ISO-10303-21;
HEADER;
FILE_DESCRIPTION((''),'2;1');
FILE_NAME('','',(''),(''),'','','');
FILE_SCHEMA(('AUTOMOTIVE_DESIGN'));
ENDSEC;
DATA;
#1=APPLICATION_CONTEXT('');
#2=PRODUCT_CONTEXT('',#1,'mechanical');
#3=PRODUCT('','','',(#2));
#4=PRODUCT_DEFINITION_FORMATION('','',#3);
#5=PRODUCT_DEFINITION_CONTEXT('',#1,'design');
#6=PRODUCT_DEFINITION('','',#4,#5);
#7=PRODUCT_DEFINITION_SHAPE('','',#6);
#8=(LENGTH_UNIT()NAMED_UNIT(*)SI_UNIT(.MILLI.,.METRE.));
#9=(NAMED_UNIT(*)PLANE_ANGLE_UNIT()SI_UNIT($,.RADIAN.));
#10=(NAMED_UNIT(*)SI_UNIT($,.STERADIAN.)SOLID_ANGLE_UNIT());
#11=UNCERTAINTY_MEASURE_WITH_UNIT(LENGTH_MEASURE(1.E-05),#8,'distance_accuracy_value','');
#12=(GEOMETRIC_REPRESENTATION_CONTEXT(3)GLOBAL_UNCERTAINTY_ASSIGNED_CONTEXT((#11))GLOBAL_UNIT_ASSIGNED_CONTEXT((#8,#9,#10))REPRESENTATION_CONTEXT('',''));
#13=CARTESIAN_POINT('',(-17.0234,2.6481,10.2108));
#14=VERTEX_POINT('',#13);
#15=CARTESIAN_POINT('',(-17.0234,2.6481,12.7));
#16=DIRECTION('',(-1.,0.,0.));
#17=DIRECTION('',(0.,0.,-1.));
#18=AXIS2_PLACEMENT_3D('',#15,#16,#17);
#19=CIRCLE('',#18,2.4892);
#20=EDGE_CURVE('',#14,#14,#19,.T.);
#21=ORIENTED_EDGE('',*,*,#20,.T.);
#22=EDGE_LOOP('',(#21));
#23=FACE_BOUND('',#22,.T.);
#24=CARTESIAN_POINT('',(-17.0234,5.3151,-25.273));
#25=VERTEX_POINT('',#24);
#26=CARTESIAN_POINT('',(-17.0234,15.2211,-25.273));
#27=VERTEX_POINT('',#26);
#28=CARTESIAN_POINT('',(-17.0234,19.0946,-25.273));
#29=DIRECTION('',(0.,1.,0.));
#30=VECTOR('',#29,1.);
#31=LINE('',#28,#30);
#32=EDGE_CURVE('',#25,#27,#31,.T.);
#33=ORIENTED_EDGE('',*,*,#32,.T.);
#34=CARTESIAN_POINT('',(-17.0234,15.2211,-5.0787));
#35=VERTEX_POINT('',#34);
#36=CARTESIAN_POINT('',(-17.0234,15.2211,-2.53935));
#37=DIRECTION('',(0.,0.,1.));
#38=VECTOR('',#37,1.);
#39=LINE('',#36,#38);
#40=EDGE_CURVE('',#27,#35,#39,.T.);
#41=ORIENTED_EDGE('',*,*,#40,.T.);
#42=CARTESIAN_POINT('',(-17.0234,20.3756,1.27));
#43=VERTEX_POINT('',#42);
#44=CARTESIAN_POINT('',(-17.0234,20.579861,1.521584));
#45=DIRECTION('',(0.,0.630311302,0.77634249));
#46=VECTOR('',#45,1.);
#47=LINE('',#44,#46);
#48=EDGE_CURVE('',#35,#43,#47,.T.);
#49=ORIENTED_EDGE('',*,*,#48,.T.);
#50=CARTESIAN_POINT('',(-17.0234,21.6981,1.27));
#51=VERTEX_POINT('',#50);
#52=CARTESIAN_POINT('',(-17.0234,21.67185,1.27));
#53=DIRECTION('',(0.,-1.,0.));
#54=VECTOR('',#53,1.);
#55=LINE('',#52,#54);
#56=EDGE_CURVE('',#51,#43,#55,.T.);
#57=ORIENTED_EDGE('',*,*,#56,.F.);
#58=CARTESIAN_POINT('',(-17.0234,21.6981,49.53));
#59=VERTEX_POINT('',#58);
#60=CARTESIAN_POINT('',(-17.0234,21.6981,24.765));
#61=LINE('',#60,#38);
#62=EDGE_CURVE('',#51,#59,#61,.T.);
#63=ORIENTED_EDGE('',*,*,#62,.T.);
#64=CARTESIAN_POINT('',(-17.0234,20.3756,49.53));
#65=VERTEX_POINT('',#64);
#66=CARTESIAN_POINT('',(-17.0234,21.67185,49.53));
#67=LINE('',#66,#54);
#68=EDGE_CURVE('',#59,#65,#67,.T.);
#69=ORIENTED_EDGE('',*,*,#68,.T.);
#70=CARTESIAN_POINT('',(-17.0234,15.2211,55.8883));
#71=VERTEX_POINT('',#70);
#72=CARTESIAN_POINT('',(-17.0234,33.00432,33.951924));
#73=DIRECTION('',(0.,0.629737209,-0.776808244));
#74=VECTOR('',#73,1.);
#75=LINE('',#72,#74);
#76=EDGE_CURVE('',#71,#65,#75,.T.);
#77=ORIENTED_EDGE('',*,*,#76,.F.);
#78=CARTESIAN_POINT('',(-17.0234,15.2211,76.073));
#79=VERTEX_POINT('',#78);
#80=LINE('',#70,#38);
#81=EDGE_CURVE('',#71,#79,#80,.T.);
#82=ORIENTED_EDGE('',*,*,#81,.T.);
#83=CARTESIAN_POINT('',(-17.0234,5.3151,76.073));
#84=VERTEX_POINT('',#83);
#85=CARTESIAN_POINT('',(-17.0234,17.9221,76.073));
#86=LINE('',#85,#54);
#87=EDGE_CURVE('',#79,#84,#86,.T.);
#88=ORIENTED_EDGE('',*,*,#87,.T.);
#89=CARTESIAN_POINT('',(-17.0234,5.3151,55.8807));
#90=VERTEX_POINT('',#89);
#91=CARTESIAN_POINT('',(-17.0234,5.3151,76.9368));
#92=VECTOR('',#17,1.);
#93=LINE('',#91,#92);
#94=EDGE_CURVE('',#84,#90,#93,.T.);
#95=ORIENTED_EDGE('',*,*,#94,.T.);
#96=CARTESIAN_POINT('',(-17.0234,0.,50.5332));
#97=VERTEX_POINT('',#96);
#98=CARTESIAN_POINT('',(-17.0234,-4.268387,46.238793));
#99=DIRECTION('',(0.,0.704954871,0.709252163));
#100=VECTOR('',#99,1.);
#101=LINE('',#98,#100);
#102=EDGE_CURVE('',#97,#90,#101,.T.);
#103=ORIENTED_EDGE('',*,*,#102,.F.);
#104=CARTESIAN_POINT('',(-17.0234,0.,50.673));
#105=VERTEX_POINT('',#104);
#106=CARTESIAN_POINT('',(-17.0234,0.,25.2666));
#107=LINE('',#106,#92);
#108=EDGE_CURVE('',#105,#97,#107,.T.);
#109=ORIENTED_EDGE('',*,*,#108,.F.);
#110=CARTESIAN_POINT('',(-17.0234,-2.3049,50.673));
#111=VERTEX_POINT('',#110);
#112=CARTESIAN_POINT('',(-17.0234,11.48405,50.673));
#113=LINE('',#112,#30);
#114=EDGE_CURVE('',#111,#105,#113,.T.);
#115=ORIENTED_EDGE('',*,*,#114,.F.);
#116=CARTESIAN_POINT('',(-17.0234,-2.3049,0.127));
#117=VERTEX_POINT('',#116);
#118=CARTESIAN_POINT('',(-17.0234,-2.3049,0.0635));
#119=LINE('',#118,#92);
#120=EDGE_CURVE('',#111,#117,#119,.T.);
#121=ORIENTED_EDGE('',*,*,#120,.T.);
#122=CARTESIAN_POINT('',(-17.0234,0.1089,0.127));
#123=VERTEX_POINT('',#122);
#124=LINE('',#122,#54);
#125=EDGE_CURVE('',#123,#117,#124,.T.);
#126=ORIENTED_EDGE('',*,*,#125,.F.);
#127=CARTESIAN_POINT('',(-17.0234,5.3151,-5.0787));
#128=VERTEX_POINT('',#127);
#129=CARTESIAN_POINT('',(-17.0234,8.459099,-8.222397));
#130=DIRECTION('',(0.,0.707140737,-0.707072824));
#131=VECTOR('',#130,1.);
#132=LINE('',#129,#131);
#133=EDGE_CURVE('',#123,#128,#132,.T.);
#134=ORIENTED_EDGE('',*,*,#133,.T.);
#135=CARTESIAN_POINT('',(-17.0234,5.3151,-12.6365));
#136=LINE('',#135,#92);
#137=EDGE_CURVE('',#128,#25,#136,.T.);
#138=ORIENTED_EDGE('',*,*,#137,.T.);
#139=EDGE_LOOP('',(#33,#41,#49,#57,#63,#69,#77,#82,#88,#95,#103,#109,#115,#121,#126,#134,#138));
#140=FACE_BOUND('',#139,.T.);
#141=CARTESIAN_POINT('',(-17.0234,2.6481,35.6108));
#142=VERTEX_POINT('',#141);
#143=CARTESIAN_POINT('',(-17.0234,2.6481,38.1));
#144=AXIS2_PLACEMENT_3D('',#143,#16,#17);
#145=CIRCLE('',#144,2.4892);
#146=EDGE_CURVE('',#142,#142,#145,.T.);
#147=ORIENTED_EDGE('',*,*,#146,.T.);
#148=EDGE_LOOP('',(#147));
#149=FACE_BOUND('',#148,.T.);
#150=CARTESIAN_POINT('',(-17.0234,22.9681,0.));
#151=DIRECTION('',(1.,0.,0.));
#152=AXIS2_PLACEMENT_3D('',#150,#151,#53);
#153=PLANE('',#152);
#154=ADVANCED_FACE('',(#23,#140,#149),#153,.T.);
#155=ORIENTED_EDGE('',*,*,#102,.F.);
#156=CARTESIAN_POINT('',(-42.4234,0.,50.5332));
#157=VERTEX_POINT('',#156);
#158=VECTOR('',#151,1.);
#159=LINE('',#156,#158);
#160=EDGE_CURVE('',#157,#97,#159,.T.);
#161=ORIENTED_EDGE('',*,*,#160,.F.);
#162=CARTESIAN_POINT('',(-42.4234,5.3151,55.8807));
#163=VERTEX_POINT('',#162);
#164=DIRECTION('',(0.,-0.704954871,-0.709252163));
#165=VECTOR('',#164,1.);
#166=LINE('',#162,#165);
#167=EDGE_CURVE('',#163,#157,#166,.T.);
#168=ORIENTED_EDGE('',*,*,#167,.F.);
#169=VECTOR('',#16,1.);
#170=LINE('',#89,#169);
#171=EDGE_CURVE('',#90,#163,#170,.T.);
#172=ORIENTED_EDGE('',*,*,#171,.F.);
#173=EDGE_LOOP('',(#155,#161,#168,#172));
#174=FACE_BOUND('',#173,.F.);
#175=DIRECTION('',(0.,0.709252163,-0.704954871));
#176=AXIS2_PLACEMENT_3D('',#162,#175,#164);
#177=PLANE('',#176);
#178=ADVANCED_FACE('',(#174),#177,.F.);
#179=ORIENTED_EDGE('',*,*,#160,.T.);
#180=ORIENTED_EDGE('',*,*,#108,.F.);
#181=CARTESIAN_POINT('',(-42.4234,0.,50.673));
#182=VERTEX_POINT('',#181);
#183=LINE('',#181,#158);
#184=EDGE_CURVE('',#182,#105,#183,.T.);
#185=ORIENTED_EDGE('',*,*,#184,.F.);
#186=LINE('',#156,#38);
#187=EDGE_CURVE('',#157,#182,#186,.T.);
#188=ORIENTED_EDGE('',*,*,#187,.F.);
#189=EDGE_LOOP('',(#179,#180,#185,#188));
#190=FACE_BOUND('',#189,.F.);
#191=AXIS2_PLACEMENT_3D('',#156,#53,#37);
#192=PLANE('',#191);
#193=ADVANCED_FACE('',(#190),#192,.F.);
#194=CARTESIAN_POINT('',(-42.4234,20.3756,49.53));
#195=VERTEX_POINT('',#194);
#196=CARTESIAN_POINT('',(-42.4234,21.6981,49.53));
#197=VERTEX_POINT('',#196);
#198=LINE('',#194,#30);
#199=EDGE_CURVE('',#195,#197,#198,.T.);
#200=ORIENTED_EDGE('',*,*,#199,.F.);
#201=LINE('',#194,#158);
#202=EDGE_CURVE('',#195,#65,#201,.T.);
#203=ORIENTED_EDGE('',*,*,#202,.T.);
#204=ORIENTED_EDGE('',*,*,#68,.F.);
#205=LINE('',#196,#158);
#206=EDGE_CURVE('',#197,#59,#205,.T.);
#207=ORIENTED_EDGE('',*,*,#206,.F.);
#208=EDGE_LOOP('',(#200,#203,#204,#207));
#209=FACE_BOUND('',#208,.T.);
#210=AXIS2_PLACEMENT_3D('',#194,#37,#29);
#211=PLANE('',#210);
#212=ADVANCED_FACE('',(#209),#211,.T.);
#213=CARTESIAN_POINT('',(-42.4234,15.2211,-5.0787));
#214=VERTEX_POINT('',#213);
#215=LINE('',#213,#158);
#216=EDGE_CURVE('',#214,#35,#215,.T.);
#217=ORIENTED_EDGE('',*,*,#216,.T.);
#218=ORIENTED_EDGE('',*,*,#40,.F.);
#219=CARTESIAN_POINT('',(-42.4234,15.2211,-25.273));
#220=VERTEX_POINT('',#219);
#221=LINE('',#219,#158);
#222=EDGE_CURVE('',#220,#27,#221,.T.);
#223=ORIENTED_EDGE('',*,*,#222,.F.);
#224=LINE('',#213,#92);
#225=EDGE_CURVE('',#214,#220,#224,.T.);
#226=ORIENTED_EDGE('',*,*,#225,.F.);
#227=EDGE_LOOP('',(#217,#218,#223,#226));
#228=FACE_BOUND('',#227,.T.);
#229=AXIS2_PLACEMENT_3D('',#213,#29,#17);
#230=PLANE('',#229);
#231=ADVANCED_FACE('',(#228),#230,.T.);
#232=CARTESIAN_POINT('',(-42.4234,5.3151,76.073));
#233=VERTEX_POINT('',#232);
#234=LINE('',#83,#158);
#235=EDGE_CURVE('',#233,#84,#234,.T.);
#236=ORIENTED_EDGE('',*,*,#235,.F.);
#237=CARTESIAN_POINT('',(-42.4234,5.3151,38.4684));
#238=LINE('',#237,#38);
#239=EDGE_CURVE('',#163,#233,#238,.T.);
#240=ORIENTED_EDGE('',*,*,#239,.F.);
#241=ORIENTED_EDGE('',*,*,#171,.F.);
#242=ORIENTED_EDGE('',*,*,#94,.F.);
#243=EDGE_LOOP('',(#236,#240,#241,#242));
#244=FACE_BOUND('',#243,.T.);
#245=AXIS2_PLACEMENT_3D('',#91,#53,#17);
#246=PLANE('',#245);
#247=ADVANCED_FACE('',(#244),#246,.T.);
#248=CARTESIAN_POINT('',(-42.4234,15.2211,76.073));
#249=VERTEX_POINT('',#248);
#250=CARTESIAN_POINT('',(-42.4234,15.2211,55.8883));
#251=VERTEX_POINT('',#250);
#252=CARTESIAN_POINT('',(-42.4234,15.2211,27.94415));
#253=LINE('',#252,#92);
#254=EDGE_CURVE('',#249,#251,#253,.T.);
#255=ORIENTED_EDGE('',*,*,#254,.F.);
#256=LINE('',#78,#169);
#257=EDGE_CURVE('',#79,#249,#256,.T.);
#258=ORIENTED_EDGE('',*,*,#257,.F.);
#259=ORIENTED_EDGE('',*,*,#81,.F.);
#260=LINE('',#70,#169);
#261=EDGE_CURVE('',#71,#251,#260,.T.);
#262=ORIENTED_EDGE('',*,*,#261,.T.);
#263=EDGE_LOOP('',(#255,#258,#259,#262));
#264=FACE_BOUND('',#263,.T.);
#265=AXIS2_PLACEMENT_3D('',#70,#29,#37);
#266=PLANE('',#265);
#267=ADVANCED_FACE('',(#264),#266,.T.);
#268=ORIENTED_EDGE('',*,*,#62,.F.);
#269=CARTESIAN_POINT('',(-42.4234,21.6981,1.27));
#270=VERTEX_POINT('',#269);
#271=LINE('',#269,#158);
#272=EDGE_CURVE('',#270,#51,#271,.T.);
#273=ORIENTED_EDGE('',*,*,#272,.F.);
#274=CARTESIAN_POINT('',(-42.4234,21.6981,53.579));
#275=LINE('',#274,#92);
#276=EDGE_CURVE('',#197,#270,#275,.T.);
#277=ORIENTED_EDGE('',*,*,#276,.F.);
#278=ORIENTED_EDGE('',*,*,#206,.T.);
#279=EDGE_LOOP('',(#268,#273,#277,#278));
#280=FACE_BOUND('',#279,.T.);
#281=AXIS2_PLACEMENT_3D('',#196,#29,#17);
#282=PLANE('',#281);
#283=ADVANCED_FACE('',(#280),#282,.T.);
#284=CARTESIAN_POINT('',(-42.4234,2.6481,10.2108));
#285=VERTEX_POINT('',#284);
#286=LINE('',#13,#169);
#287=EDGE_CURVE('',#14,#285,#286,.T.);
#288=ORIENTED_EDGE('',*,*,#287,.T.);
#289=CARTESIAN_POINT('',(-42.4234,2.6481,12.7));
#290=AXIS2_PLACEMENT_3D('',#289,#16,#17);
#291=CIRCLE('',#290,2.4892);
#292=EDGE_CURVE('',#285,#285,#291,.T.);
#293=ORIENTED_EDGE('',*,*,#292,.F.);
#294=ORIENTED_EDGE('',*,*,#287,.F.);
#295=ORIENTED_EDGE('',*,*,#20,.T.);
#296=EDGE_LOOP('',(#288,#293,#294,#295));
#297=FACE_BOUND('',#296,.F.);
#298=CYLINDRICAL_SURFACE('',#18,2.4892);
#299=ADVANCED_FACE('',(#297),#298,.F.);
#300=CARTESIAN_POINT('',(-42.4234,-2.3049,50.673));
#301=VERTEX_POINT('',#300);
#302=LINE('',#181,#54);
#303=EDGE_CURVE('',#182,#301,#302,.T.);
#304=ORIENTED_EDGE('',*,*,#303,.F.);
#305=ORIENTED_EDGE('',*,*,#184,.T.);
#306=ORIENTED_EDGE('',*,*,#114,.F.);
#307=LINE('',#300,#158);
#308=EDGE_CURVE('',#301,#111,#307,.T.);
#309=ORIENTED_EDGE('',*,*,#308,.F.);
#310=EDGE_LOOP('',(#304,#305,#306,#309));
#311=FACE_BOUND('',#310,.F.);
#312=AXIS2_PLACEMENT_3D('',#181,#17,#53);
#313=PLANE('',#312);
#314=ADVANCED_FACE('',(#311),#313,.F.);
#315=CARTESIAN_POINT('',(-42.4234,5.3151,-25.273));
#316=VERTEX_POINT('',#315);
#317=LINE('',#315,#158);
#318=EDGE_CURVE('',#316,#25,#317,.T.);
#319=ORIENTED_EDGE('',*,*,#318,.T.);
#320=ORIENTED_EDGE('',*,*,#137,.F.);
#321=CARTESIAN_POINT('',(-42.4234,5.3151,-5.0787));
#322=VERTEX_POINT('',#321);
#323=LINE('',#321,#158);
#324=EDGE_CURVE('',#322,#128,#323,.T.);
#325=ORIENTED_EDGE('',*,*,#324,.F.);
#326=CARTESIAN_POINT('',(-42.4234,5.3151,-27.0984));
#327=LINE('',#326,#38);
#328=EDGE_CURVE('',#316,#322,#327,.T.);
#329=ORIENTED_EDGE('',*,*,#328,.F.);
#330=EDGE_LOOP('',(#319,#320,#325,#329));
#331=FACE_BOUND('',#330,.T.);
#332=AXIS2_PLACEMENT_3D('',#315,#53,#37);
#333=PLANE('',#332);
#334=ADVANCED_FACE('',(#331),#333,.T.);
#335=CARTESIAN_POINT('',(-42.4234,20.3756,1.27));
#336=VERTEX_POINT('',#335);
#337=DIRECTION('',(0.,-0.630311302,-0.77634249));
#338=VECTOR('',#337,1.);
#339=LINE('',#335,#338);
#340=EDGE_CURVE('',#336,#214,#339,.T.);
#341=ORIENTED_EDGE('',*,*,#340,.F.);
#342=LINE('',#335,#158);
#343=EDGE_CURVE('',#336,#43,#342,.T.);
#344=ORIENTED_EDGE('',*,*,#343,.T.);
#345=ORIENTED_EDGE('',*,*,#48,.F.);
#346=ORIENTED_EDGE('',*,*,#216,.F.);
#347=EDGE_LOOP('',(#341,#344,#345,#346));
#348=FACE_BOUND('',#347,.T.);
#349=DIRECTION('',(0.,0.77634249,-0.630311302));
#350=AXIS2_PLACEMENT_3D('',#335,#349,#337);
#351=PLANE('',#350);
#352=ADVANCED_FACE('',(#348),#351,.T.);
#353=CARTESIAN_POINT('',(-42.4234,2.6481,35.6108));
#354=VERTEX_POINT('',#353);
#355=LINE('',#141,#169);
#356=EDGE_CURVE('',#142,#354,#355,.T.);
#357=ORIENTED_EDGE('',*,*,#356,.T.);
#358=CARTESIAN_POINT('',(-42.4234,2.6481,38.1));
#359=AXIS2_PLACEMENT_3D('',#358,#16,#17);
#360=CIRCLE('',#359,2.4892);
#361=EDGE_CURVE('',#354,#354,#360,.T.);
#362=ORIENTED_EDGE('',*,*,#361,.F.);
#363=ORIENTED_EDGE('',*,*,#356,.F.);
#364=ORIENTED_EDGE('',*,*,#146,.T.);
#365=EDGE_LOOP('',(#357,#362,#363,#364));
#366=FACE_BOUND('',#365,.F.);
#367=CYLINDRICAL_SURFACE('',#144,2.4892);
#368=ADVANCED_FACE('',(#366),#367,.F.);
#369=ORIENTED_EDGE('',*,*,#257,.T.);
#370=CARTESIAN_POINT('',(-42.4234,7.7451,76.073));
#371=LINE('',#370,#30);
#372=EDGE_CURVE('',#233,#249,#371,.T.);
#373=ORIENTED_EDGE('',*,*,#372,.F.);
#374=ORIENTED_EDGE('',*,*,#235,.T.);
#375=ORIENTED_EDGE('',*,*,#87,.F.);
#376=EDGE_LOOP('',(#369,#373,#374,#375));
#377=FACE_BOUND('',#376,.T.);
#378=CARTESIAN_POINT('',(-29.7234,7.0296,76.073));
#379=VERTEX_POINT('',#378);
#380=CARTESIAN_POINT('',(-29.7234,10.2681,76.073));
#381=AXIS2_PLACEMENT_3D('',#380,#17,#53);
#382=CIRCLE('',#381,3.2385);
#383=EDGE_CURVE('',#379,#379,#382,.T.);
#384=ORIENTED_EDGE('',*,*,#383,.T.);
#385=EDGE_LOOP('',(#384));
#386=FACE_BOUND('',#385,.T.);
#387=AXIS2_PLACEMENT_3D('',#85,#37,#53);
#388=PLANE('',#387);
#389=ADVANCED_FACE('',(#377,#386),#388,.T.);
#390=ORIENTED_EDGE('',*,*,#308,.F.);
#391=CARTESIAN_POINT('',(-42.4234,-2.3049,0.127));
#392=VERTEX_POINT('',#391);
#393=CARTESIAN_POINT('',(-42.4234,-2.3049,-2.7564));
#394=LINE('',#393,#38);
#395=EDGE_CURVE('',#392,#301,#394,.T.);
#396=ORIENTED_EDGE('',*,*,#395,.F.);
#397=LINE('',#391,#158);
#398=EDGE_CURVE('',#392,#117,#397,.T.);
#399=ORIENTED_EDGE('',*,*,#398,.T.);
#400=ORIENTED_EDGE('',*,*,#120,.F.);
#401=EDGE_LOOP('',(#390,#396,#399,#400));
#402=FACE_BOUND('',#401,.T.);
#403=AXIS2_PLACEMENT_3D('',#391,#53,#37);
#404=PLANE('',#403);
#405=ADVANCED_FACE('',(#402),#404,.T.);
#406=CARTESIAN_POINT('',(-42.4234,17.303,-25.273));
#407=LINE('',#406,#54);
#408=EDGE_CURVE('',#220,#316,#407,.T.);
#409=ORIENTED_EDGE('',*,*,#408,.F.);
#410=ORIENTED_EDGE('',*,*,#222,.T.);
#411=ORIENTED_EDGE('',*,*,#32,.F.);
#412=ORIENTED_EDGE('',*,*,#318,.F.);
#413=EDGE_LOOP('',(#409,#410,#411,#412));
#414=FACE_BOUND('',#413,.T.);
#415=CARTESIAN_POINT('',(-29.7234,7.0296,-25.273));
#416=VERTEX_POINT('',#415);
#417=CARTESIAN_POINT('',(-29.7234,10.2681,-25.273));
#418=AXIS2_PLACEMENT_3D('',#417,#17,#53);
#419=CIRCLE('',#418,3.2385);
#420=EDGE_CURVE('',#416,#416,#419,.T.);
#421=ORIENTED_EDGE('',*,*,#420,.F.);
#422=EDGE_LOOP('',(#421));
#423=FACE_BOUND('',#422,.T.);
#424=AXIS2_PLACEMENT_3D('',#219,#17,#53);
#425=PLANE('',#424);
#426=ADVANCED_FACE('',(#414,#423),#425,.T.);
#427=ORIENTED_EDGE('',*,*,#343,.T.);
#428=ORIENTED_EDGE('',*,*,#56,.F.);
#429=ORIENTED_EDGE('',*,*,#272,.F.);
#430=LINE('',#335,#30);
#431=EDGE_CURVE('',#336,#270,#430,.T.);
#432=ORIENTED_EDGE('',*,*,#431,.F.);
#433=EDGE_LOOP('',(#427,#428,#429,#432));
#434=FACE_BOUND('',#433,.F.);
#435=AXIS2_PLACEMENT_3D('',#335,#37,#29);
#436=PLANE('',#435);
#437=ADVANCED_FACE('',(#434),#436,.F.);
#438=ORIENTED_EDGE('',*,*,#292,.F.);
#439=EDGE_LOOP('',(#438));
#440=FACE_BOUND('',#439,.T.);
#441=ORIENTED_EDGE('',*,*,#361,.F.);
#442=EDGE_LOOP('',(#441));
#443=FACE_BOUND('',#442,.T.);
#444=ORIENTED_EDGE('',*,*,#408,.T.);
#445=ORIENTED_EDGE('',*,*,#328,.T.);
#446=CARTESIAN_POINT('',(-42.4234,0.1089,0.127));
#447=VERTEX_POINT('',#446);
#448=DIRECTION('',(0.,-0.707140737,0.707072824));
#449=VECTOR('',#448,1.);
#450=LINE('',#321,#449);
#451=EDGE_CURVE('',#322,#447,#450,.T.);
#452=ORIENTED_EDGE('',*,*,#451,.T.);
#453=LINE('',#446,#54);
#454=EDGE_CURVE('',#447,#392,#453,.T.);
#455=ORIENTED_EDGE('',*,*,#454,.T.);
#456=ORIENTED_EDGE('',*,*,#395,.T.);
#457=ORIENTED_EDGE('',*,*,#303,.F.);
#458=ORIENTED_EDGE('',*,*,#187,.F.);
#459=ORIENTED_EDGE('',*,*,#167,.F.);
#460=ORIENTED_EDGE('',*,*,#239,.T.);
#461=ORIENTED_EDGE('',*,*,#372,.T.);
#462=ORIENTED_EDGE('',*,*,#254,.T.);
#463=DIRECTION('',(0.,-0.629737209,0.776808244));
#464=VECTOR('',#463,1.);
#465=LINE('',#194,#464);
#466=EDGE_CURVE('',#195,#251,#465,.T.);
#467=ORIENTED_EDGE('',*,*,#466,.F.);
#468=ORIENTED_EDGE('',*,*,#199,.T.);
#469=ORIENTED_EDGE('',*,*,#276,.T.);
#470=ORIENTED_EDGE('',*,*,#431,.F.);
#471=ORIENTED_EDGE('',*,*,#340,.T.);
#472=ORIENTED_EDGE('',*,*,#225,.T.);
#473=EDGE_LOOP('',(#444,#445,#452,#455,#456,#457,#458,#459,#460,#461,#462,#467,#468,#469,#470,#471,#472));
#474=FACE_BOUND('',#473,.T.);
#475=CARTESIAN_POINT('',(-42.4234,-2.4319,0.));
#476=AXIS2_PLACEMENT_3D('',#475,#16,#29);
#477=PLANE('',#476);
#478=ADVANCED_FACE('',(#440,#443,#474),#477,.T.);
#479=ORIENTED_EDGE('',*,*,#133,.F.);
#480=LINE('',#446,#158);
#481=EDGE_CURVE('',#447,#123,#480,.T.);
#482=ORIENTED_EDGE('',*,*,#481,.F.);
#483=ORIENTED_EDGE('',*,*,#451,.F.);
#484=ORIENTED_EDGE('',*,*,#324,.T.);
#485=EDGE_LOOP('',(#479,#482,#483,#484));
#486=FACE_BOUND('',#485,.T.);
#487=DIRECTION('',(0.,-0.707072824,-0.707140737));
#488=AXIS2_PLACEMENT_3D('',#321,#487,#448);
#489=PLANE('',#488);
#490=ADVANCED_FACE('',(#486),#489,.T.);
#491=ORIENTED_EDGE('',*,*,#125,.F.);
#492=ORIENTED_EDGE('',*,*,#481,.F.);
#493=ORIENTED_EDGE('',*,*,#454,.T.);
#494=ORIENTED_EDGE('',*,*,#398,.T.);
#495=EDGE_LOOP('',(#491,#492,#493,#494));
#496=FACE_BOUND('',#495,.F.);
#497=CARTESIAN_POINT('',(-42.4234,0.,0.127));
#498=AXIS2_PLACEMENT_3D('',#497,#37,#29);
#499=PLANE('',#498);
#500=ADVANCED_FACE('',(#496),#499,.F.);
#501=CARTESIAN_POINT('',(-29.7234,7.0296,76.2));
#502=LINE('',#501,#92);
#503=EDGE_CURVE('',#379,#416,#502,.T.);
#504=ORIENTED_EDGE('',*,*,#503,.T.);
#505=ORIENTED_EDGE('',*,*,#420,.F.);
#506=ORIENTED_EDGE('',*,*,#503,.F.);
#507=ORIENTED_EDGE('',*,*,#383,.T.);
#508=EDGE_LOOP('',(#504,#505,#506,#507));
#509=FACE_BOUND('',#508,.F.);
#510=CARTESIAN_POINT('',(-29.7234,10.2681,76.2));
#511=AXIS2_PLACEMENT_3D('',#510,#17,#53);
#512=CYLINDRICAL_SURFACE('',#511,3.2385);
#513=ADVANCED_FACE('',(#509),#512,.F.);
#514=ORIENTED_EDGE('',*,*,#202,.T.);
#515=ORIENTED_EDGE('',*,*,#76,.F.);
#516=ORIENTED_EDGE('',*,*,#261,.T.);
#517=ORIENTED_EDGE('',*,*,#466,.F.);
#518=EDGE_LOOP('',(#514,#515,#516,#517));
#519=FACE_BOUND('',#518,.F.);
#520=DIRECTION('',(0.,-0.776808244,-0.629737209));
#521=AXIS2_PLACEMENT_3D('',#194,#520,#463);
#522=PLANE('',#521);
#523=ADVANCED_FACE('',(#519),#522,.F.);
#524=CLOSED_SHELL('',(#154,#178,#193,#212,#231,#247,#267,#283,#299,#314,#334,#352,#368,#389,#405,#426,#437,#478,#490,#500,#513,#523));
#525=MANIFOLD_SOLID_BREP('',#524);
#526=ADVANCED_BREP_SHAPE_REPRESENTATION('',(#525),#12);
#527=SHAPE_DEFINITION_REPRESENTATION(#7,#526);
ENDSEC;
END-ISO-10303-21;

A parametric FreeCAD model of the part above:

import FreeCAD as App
import Part
import Sketcher

V = App.Vector
Q = App.Units.Quantity

doc = App.newDocument("Part")
params = doc.addObject("Spreadsheet::Sheet", "Params")
for row, (alias, value) in enumerate([
    ("sketch1_width", "1 in"),
    ("pad1_length", "2 in"),
    ("sketch2_width", "0.8 in"),
    ("pad2_length", "1 in"),
    ("sketch3_width", "0.8 in"),
    ("sketch3_width2", "0.4 in"),
    ("pad3_length", "1 in"),
    ("sketch4_diameter", "0.255 in"),
    ("hole_diameter", "0.255 in"),
    ("sketch5_diameter", "0.196 in"),
    ("hole2_diameter", "0.196 in"),
    ("pocket1_length", "2 in"),
    ("pocket2_length", "2 in"),
    ("sketch8_width", "0.39 in"),
    ("pocket3_length", "2 in"),
    ("sketch9_height", "1.99 in"),
    ("pocket4_length", "2 in"),
    ("sketch10_height", "1.9 in"),
    ("pocket5_length", "2 in"),
    ("sketch11_height", "0.005 in"),
    ("pocket6_length", "2 in"),
    ("pocket7_length", "2 in"),
    ("sketch13_width", "0.005 in"),
    ("pocket8_length", "2 in"),
    ("sketch14_width", "0.005 in"),
    ("pocket9_length", "2 in"),
], start=1):
    params.set(f"A{row}", alias)
    params.set(f"B{row}", "=" + value)
    params.setAlias(f"B{row}", alias)

body = doc.addObject("PartDesign::Body", "Body")

# Sketch on XY plane
sketch1 = doc.addObject("Sketcher::SketchObject", "Sketch")
body.addObject(sketch1)
sketch1.AttachmentSupport = (doc.XY_Plane, [""])
sketch1.MapMode = "FlatFace"
sketch1.addGeometry([
    Part.LineSegment(V(-17, 23, 0), V(-42, 23, 0)),
    Part.LineSegment(V(-42, 23, 0), V(-42, -2, 0)),
    Part.LineSegment(V(-42, -2, 0), V(-17, -2, 0)),
    Part.LineSegment(V(-17, -2, 0), V(-17, 23, 0)),
], False)
sketch1.addConstraint([
    Sketcher.Constraint("Coincident", 0, 2, 1, 1),
    Sketcher.Constraint("Coincident", 1, 2, 2, 1),
    Sketcher.Constraint("Coincident", 2, 2, 3, 1),
    Sketcher.Constraint("Coincident", 3, 2, 0, 1),
    Sketcher.Constraint("Horizontal", 0),
    Sketcher.Constraint("Vertical", 1),
    Sketcher.Constraint("Horizontal", 2),
    Sketcher.Constraint("Vertical", 3),
    Sketcher.Constraint("Equal", 2, 1),
    Sketcher.Constraint("DistanceX", 0, 2, 0, 1, Q("1 in")),
    Sketcher.Constraint("DistanceX", 0, 2, -1, 1, Q("42.4234 mm")),
    Sketcher.Constraint("DistanceY", -1, 1, 0, 2, Q("22.968 mm")),
])
sketch1.setExpression("Constraints[9]", "Params.sketch1_width")
pad1 = doc.addObject("PartDesign::Pad", "Pad")
body.addObject(pad1)
pad1.Profile = sketch1
pad1.setExpression("Length", "Params.pad1_length")

# Sketch on YZ plane
sketch2 = doc.addObject("Sketcher::SketchObject", "Sketch001")
body.addObject(sketch2)
sketch2.AttachmentSupport = (doc.YZ_Plane, [""])
sketch2.MapMode = "FlatFace"
sketch2.AttachmentOffset = App.Placement(V(0, 0, -17.0234), App.Rotation())
sketch2.addGeometry([
    Part.LineSegment(V(0, 51, 0), V(20, 51, 0)),  # 0
    Part.LineSegment(V(20, 51, 0), V(15, 56, 0)),  # 1
    Part.LineSegment(V(15, 56, 0), V(15, 76, 0)),  # 2
    Part.LineSegment(V(15, 76, 0), V(5, 76, 0)),  # 3
    Part.LineSegment(V(5, 76, 0), V(5, 56, 0)),  # 4
    Part.LineSegment(V(5, 56, 0), V(0, 51, 0)),  # 5
], False)
sketch2.addConstraint([
    Sketcher.Constraint("Coincident", 0, 2, 1, 1),
    Sketcher.Constraint("Coincident", 1, 2, 2, 1),
    Sketcher.Constraint("Coincident", 2, 2, 3, 1),
    Sketcher.Constraint("Coincident", 3, 2, 4, 1),
    Sketcher.Constraint("Coincident", 4, 2, 5, 1),
    Sketcher.Constraint("Coincident", 5, 2, 0, 1),
    Sketcher.Constraint("Horizontal", 0),
    Sketcher.Constraint("Vertical", 2),
    Sketcher.Constraint("Horizontal", 3),
    Sketcher.Constraint("Vertical", 4),
    Sketcher.Constraint("Perpendicular", 1, 5),
    Sketcher.Constraint("Horizontal", 1, 2, 4, 2),
    Sketcher.Constraint("Equal", 0, 2),
    Sketcher.Constraint("Equal", 1, 5),
    Sketcher.Constraint("DistanceX", 0, 1, 0, 2, Q("0.8 in")),
    Sketcher.Constraint("DistanceY", 0, 2, 2, 2, Q("1 in")),
    Sketcher.Constraint("DistanceY", -1, 1, 0, 2, Q("2 in")),
    Sketcher.Constraint("DistanceX", -1, 1, 0, 2, Q("20.428 mm")),
])
sketch2.setExpression("Constraints[14]", "Params.sketch2_width")
pad2 = doc.addObject("PartDesign::Pad", "Pad001")
body.addObject(pad2)
pad2.Profile = sketch2
pad2.setExpression("Length", "Params.pad2_length")
pad2.Reversed = True

# Sketch on YZ plane
sketch3 = doc.addObject("Sketcher::SketchObject", "Sketch002")
body.addObject(sketch3)
sketch3.AttachmentSupport = (doc.YZ_Plane, [""])
sketch3.MapMode = "FlatFace"
sketch3.AttachmentOffset = App.Placement(V(0, 0, -17.0234), App.Rotation())
sketch3.addGeometry([
    Part.LineSegment(V(20, 0, 0), V(0, 0, 0)),  # 0
    Part.LineSegment(V(0, 0, 0), V(5, -5, 0)),  # 1
    Part.LineSegment(V(5, -5, 0), V(5, -25, 0)),  # 2
    Part.LineSegment(V(5, -25, 0), V(15, -25, 0)),  # 3
    Part.LineSegment(V(15, -25, 0), V(15, -5, 0)),  # 4
    Part.LineSegment(V(15, -5, 0), V(20, 0, 0)),  # 5
], False)
sketch3.addConstraint([
    Sketcher.Constraint("Coincident", 0, 2, 1, 1),
    Sketcher.Constraint("Coincident", 1, 2, 2, 1),
    Sketcher.Constraint("Coincident", 2, 2, 3, 1),
    Sketcher.Constraint("Coincident", 3, 2, 4, 1),
    Sketcher.Constraint("Coincident", 4, 2, 5, 1),
    Sketcher.Constraint("Coincident", 5, 2, 0, 1),
    Sketcher.Constraint("Horizontal", 0),
    Sketcher.Constraint("Vertical", 2),
    Sketcher.Constraint("Horizontal", 3),
    Sketcher.Constraint("Vertical", 4),
    Sketcher.Constraint("PointOnObject", 0, 2, -1),
    Sketcher.Constraint("Perpendicular", 1, 5),
    Sketcher.Constraint("Horizontal", 1, 2, 4, 2),
    Sketcher.Constraint("Equal", 0, 2),
    Sketcher.Constraint("Equal", 1, 5),
    Sketcher.Constraint("DistanceX", 0, 2, 0, 1, Q("0.8 in")),
    Sketcher.Constraint("DistanceX", 3, 1, 3, 2, Q("0.4 in")),
    Sketcher.Constraint("DistanceX", -1, 1, 0, 2, Q("0.108 mm")),
])
sketch3.setExpression("Constraints[15]", "Params.sketch3_width")
sketch3.setExpression("Constraints[16]", "Params.sketch3_width2")
pad3 = doc.addObject("PartDesign::Pad", "Pad002")
body.addObject(pad3)
pad3.Profile = sketch3
pad3.setExpression("Length", "Params.pad3_length")
pad3.Reversed = True

# Sketch on XY plane
sketch4 = doc.addObject("Sketcher::SketchObject", "Sketch003")
body.addObject(sketch4)
sketch4.AttachmentSupport = (doc.XY_Plane, [""])
sketch4.MapMode = "FlatFace"
sketch4.AttachmentOffset = App.Placement(V(0, 0, 3 * 25.4), App.Rotation())
sketch4.addGeometry(Part.Circle(V(-29.7, 10.3, 0), V(0, 0, 1), 3.2), False)
sketch4.addConstraint([
    Sketcher.Constraint("Diameter", 0, Q("0.255 in")),
    Sketcher.Constraint("DistanceX", 0, 3, -1, 1, Q("29.7234 mm")),
    Sketcher.Constraint("DistanceY", -1, 1, 0, 3, Q("10.268 mm")),
])
sketch4.setExpression("Constraints[0]", "Params.sketch4_diameter")
doc.recompute()
hole = doc.addObject("PartDesign::Hole", "Hole")
body.addObject(hole)
hole.Profile = sketch4
hole.ThreadType = "None"
hole.setExpression("Diameter", "Params.hole_diameter")
hole.DepthType = "ThroughAll"

# Sketch on YZ plane
sketch5 = doc.addObject("Sketcher::SketchObject", "Sketch004")
body.addObject(sketch5)
sketch5.AttachmentSupport = (doc.YZ_Plane, [""])
sketch5.MapMode = "FlatFace"
sketch5.AttachmentOffset = App.Placement(V(0, 0, -17.0234), App.Rotation())
sketch5.addGeometry([
    Part.Circle(V(2.6, 38.1, 0), V(0, 0, 1), 2.5),
    Part.Circle(V(2.6, 12.7, 0), V(0, 0, 1), 2.5),
], False)
sketch5.addConstraint([
    Sketcher.Constraint("Equal", 0, 1),
    Sketcher.Constraint("Vertical", 0, 3, 1, 3),
    Sketcher.Constraint("Diameter", 0, Q("0.196 in")),
    Sketcher.Constraint("DistanceY", 1, 3, 0, 3, Q("1 in")),
    Sketcher.Constraint("DistanceY", -1, 1, 0, 3, Q("1.5 in")),
    Sketcher.Constraint("DistanceX", -1, 1, 0, 3, Q("2.648 mm")),
])
sketch5.setExpression("Constraints[2]", "Params.sketch5_diameter")
doc.recompute()
hole2 = doc.addObject("PartDesign::Hole", "Hole001")
body.addObject(hole2)
hole2.Profile = sketch5
hole2.ThreadType = "None"
hole2.setExpression("Diameter", "Params.hole2_diameter")
hole2.DepthType = "ThroughAll"

# Sketch on YZ plane
sketch6 = doc.addObject("Sketcher::SketchObject", "Sketch005")
body.addObject(sketch6)
sketch6.AttachmentSupport = (doc.YZ_Plane, [""])
sketch6.MapMode = "FlatFace"
sketch6.AttachmentOffset = App.Placement(V(0, 0, -17.0234), App.Rotation())
sketch6.addGeometry([
    Part.LineSegment(V(17.9, 76.1, 0), V(17.9, 80.2, 0)),
    Part.LineSegment(V(17.9, 80.2, 0), V(2.8, 80.2, 0)),
    Part.LineSegment(V(2.8, 80.2, 0), V(2.8, 76.1, 0)),
    Part.LineSegment(V(2.8, 76.1, 0), V(17.9, 76.1, 0)),
], False)
sketch6.addConstraint([
    Sketcher.Constraint("Coincident", 0, 2, 1, 1),
    Sketcher.Constraint("Coincident", 1, 2, 2, 1),
    Sketcher.Constraint("Coincident", 2, 2, 3, 1),
    Sketcher.Constraint("Coincident", 3, 2, 0, 1),
    Sketcher.Constraint("Vertical", 0),
    Sketcher.Constraint("Horizontal", 1),
    Sketcher.Constraint("Vertical", 2),
    Sketcher.Constraint("Horizontal", 3),
    Sketcher.Constraint("DistanceY", -1, 1, 2, 2, Q("2.995 in")),
    Sketcher.Constraint("DistanceX", 1, 2, 1, 1, Q("15.0923 mm")),
    Sketcher.Constraint("DistanceY", 0, 1, 0, 2, Q("4.1486 mm")),
    Sketcher.Constraint("DistanceX", -1, 1, 0, 2, Q("0.7056 in")),
])
pocket1 = doc.addObject("PartDesign::Pocket", "Pocket")
body.addObject(pocket1)
pocket1.Profile = sketch6
pocket1.setExpression("Length", "Params.pocket1_length")

# Sketch on YZ plane
sketch7 = doc.addObject("Sketcher::SketchObject", "Sketch006")
body.addObject(sketch7)
sketch7.AttachmentSupport = (doc.YZ_Plane, [""])
sketch7.MapMode = "FlatFace"
sketch7.AttachmentOffset = App.Placement(V(0, 0, -17.0234), App.Rotation())
sketch7.addGeometry([
    Part.LineSegment(V(19.5, 55.9, 0), V(19.5, 78.7, 0)),  # 0
    Part.LineSegment(V(19.5, 78.7, 0), V(15.2, 78.7, 0)),  # 1
    Part.LineSegment(V(15.2, 78.7, 0), V(15.2, 55.9, 0)),  # 2
    Part.LineSegment(V(15.2, 55.9, 0), V(19.5, 55.9, 0)),  # 3
    Part.LineSegment(V(5.3, 55.9, 0), V(5.3, 76.9, 0)),  # 4
    Part.LineSegment(V(5.3, 76.9, 0), V(3.1, 76.9, 0)),  # 5
    Part.LineSegment(V(3.1, 76.9, 0), V(3.1, 55.9, 0)),  # 6
    Part.LineSegment(V(3.1, 55.9, 0), V(5.3, 55.9, 0)),  # 7
], False)
sketch7.addConstraint([
    Sketcher.Constraint("Coincident", 0, 2, 1, 1),
    Sketcher.Constraint("Coincident", 1, 2, 2, 1),
    Sketcher.Constraint("Coincident", 2, 2, 3, 1),
    Sketcher.Constraint("Coincident", 3, 2, 0, 1),
    Sketcher.Constraint("Coincident", 4, 2, 5, 1),
    Sketcher.Constraint("Coincident", 5, 2, 6, 1),
    Sketcher.Constraint("Coincident", 6, 2, 7, 1),
    Sketcher.Constraint("Coincident", 7, 2, 4, 1),
    Sketcher.Constraint("Vertical", 0),
    Sketcher.Constraint("Horizontal", 1),
    Sketcher.Constraint("Vertical", 2),
    Sketcher.Constraint("Horizontal", 3),
    Sketcher.Constraint("Vertical", 4),
    Sketcher.Constraint("Horizontal", 5),
    Sketcher.Constraint("Vertical", 6),
    Sketcher.Constraint("Horizontal", 7),
    Sketcher.Constraint("DistanceX", 4, 2, 1, 2, Q("0.39 in")),
    Sketcher.Constraint("DistanceY", -1, 1, 4, 2, Q("3.029 in")),
    Sketcher.Constraint("DistanceX", 1, 2, 1, 1, Q("4.2405 mm")),
    Sketcher.Constraint("DistanceX", 5, 2, 5, 1, Q("2.2644 mm")),
    Sketcher.Constraint("DistanceY", 0, 1, 0, 2, Q("22.84 mm")),
    Sketcher.Constraint("DistanceY", 4, 1, 4, 2, Q("21.056 mm")),
    Sketcher.Constraint("DistanceX", -1, 1, 0, 2, Q("0.7662 in")),
    Sketcher.Constraint("DistanceY", 6, 2, 2, 2, Q("0.0003 in")),
])
pocket2 = doc.addObject("PartDesign::Pocket", "Pocket001")
body.addObject(pocket2)
pocket2.Profile = sketch7
pocket2.setExpression("Length", "Params.pocket2_length")

# Sketch on YZ plane
sketch8 = doc.addObject("Sketcher::SketchObject", "Sketch007")
body.addObject(sketch8)
sketch8.AttachmentSupport = (doc.YZ_Plane, [""])
sketch8.MapMode = "FlatFace"
sketch8.AttachmentOffset = App.Placement(V(0, 0, -42.4234), App.Rotation())
sketch8.addGeometry([
    Part.LineSegment(V(18.2, -5.1, 0), V(18.2, -28.2, 0)),  # 0
    Part.LineSegment(V(18.2, -28.2, 0), V(17.3, -28.2, 0)),  # 1
    Part.LineSegment(V(17.3, -28.2, 0), V(17.3, -29.2, 0)),  # 2
    Part.LineSegment(V(17.3, -29.2, 0), V(4.2, -29.2, 0)),  # 3
    Part.LineSegment(V(4.2, -29.2, 0), V(4.2, -27.1, 0)),  # 4
    Part.LineSegment(V(4.2, -27.1, 0), V(2.8, -27.1, 0)),  # 5
    Part.LineSegment(V(2.8, -27.1, 0), V(2.8, -5.1, 0)),  # 6
    Part.LineSegment(V(2.8, -5.1, 0), V(5.3, -5.1, 0)),  # 7
    Part.LineSegment(V(5.3, -5.1, 0), V(5.3, -25.3, 0)),  # 8
    Part.LineSegment(V(5.3, -25.3, 0), V(15.2, -25.3, 0)),  # 9
    Part.LineSegment(V(15.2, -25.3, 0), V(15.2, -5.1, 0)),  # 10
    Part.LineSegment(V(15.2, -5.1, 0), V(18.2, -5.1, 0)),  # 11
], False)
sketch8.addConstraint([
    Sketcher.Constraint("Coincident", 0, 2, 1, 1),
    Sketcher.Constraint("Coincident", 1, 2, 2, 1),
    Sketcher.Constraint("Coincident", 2, 2, 3, 1),
    Sketcher.Constraint("Coincident", 3, 2, 4, 1),
    Sketcher.Constraint("Coincident", 4, 2, 5, 1),
    Sketcher.Constraint("Coincident", 5, 2, 6, 1),
    Sketcher.Constraint("Coincident", 6, 2, 7, 1),
    Sketcher.Constraint("Coincident", 7, 2, 8, 1),
    Sketcher.Constraint("Coincident", 8, 2, 9, 1),
    Sketcher.Constraint("Coincident", 9, 2, 10, 1),
    Sketcher.Constraint("Coincident", 10, 2, 11, 1),
    Sketcher.Constraint("Coincident", 11, 2, 0, 1),
    Sketcher.Constraint("Vertical", 0),
    Sketcher.Constraint("Horizontal", 1),
    Sketcher.Constraint("Vertical", 2),
    Sketcher.Constraint("Horizontal", 3),
    Sketcher.Constraint("Vertical", 4),
    Sketcher.Constraint("Horizontal", 5),
    Sketcher.Constraint("Vertical", 6),
    Sketcher.Constraint("Horizontal", 7),
    Sketcher.Constraint("Vertical", 8),
    Sketcher.Constraint("Horizontal", 9),
    Sketcher.Constraint("Vertical", 10),
    Sketcher.Constraint("Horizontal", 11),
    Sketcher.Constraint("Horizontal", 7, 2, 10, 2),
    Sketcher.Constraint("DistanceX", 9, 1, 9, 2, Q("0.39 in")),
    Sketcher.Constraint("DistanceX", 11, 1, 11, 2, Q("0.1177 in")),
    Sketcher.Constraint("DistanceY", 0, 2, 0, 1, Q("0.9088 in")),
    Sketcher.Constraint("DistanceY", 8, 2, -1, 1, Q("0.995 in")),
    Sketcher.Constraint("DistanceX", 1, 2, 1, 1, Q("0.9074 mm")),
    Sketcher.Constraint("DistanceX", 3, 2, 3, 1, Q("13.1412 mm")),
    Sketcher.Constraint("DistanceX", 5, 2, 5, 1, Q("1.408 mm")),
    Sketcher.Constraint("DistanceY", 2, 2, 2, 1, Q("1.0325 mm")),
    Sketcher.Constraint("DistanceY", 4, 1, 4, 2, Q("2.0963 mm")),
    Sketcher.Constraint("DistanceY", 8, 2, 8, 1, Q("20.1943 mm")),
    Sketcher.Constraint("DistanceX", -1, 1, 0, 2, Q("18.2104 mm")),
])
sketch8.setExpression("Constraints[25]", "Params.sketch8_width")
pocket3 = doc.addObject("PartDesign::Pocket", "Pocket002")
body.addObject(pocket3)
pocket3.Profile = sketch8
pocket3.setExpression("Length", "Params.pocket3_length")
pocket3.Reversed = True

# Sketch on YZ plane
sketch9 = doc.addObject("Sketcher::SketchObject", "Sketch008")
body.addObject(sketch9)
sketch9.AttachmentSupport = (doc.YZ_Plane, [""])
sketch9.MapMode = "FlatFace"
sketch9.AttachmentOffset = App.Placement(V(0, 0, -42.4234), App.Rotation())
sketch9.addGeometry([
    Part.LineSegment(V(-2.3, -2.32, 0), V(-2.3, -2.76, 0)),  # 0
    Part.LineSegment(V(-2.3, -2.76, 0), V(-4.56, -2.76, 0)),  # 1
    Part.LineSegment(V(-4.56, -2.76, 0), V(-4.56, -2.32, 0)),  # 2
    Part.LineSegment(V(-4.56, -2.32, 0), V(-6.03, -2.32, 0)),  # 3
    Part.LineSegment(V(-6.03, -2.32, 0), V(-6.03, 0.13, 0)),  # 4
    Part.LineSegment(V(-6.03, 0.13, 0), V(-4.56, 0.13, 0)),  # 5
    Part.LineSegment(V(-4.56, 0.13, 0), V(-4.56, 50.67, 0)),  # 6
    Part.LineSegment(V(-4.56, 50.67, 0), V(-6.18, 50.67, 0)),  # 7
    Part.LineSegment(V(-6.18, 50.67, 0), V(-6.18, 52.5, 0)),  # 8
    Part.LineSegment(V(-6.18, 52.5, 0), V(-4.56, 52.5, 0)),  # 9
    Part.LineSegment(V(-4.56, 52.5, 0), V(-4.56, 53.31, 0)),  # 10
    Part.LineSegment(V(-4.56, 53.31, 0), V(-2.3, 53.31, 0)),  # 11
    Part.LineSegment(V(-2.3, 53.31, 0), V(-2.3, 52.5, 0)),  # 12
    Part.LineSegment(V(-2.3, 52.5, 0), V(0, 52.5, 0)),  # 13
    Part.LineSegment(V(0, 52.5, 0), V(0, 50.67, 0)),  # 14
    Part.LineSegment(V(0, 50.67, 0), V(-2.3, 50.67, 0)),  # 15
    Part.LineSegment(V(-2.3, 50.67, 0), V(-2.3, 0.13, 0)),  # 16
    Part.LineSegment(V(-2.3, 0.13, 0), V(0, 0.13, 0)),  # 17
    Part.LineSegment(V(0, 0.13, 0), V(0, -2.32, 0)),  # 18
    Part.LineSegment(V(0, -2.32, 0), V(-2.3, -2.32, 0)),  # 19
], False)
sketch9.addConstraint([
    Sketcher.Constraint("Coincident", 0, 2, 1, 1),
    Sketcher.Constraint("Coincident", 1, 2, 2, 1),
    Sketcher.Constraint("Coincident", 2, 2, 3, 1),
    Sketcher.Constraint("Coincident", 3, 2, 4, 1),
    Sketcher.Constraint("Coincident", 4, 2, 5, 1),
    Sketcher.Constraint("Coincident", 5, 2, 6, 1),
    Sketcher.Constraint("Coincident", 6, 2, 7, 1),
    Sketcher.Constraint("Coincident", 7, 2, 8, 1),
    Sketcher.Constraint("Coincident", 8, 2, 9, 1),
    Sketcher.Constraint("Coincident", 9, 2, 10, 1),
    Sketcher.Constraint("Coincident", 10, 2, 11, 1),
    Sketcher.Constraint("Coincident", 11, 2, 12, 1),
    Sketcher.Constraint("Coincident", 12, 2, 13, 1),
    Sketcher.Constraint("Coincident", 13, 2, 14, 1),
    Sketcher.Constraint("Coincident", 14, 2, 15, 1),
    Sketcher.Constraint("Coincident", 15, 2, 16, 1),
    Sketcher.Constraint("Coincident", 16, 2, 17, 1),
    Sketcher.Constraint("Coincident", 17, 2, 18, 1),
    Sketcher.Constraint("Coincident", 18, 2, 19, 1),
    Sketcher.Constraint("Coincident", 19, 2, 0, 1),
    Sketcher.Constraint("Vertical", 0),
    Sketcher.Constraint("Horizontal", 1),
    Sketcher.Constraint("Vertical", 2),
    Sketcher.Constraint("Horizontal", 3),
    Sketcher.Constraint("Vertical", 4),
    Sketcher.Constraint("Horizontal", 5),
    Sketcher.Constraint("Vertical", 6),
    Sketcher.Constraint("Horizontal", 7),
    Sketcher.Constraint("Vertical", 8),
    Sketcher.Constraint("Horizontal", 9),
    Sketcher.Constraint("Vertical", 10),
    Sketcher.Constraint("Horizontal", 11),
    Sketcher.Constraint("Vertical", 12),
    Sketcher.Constraint("Horizontal", 13),
    Sketcher.Constraint("Vertical", 14),
    Sketcher.Constraint("Horizontal", 15),
    Sketcher.Constraint("Vertical", 16),
    Sketcher.Constraint("Horizontal", 17),
    Sketcher.Constraint("Vertical", 18),
    Sketcher.Constraint("Horizontal", 19),
    Sketcher.Constraint("PointOnObject", 13, 2, -2),
    Sketcher.Constraint("PointOnObject", 17, 2, -2),
    Sketcher.Constraint("Horizontal", 9, 2, 12, 2),
    Sketcher.Constraint("Horizontal", 7, 2, 14, 2),
    Sketcher.Constraint("Horizontal", 5, 2, 16, 2),
    Sketcher.Constraint("Horizontal", 3, 2, 18, 2),
    Sketcher.Constraint("Vertical", 2, 2, 5, 2),
    Sketcher.Constraint("Vertical", 6, 2, 9, 2),
    Sketcher.Constraint("Vertical", 0, 2, 11, 2),
    Sketcher.Constraint("Vertical", 12, 2, 15, 2),
    Sketcher.Constraint("DistanceY", -1, 1, 4, 2, Q("0.005 in")),
    Sketcher.Constraint("DistanceY", 6, 1, 6, 2, Q("1.99 in")),
    Sketcher.Constraint("DistanceX", 3, 2, 3, 1, Q("0.0579 in")),
    Sketcher.Constraint("DistanceY", 8, 1, 8, 2, Q("0.0719 in")),
    Sketcher.Constraint("DistanceX", 1, 2, 1, 1, Q("2.2518 mm")),
    Sketcher.Constraint("DistanceX", 7, 2, 7, 1, Q("1.627 mm")),
    Sketcher.Constraint("DistanceX", 13, 1, 13, 2, Q("2.305 mm")),
    Sketcher.Constraint("DistanceY", 0, 2, 0, 1, Q("0.438 mm")),
    Sketcher.Constraint("DistanceY", 4, 1, 4, 2, Q("2.4453 mm")),
    Sketcher.Constraint("DistanceY", 10, 1, 10, 2, Q("0.8135 mm")),
])
sketch9.setExpression("Constraints[51]", "Params.sketch9_height")
pocket4 = doc.addObject("PartDesign::Pocket", "Pocket003")
body.addObject(pocket4)
pocket4.Profile = sketch9
pocket4.setExpression("Length", "Params.pocket4_length")
pocket4.Reversed = True

# Sketch on YZ plane
sketch10 = doc.addObject("Sketcher::SketchObject", "Sketch009")
body.addObject(sketch10)
sketch10.AttachmentSupport = (doc.YZ_Plane, [""])
sketch10.MapMode = "FlatFace"
sketch10.AttachmentOffset = App.Placement(V(0, 0, -42.4234), App.Rotation())
sketch10.addGeometry([
    Part.LineSegment(V(26.76, -3.23, 0), V(26.76, -3.47, 0)),  # 0
    Part.LineSegment(V(26.76, -3.47, 0), V(21.7, -3.47, 0)),  # 1
    Part.LineSegment(V(21.7, -3.47, 0), V(21.7, -3.23, 0)),  # 2
    Part.LineSegment(V(21.7, -3.23, 0), V(20.38, -3.23, 0)),  # 3
    Part.LineSegment(V(20.38, -3.23, 0), V(20.38, 1.27, 0)),  # 4
    Part.LineSegment(V(20.38, 1.27, 0), V(21.7, 1.27, 0)),  # 5
    Part.LineSegment(V(21.7, 1.27, 0), V(21.7, 49.53, 0)),  # 6
    Part.LineSegment(V(21.7, 49.53, 0), V(20.38, 49.53, 0)),  # 7
    Part.LineSegment(V(20.38, 49.53, 0), V(20.38, 53.58, 0)),  # 8
    Part.LineSegment(V(20.38, 53.58, 0), V(28.75, 53.58, 0)),  # 9
    Part.LineSegment(V(28.75, 53.58, 0), V(28.75, 49.53, 0)),  # 10
    Part.LineSegment(V(28.75, 49.53, 0), V(26.76, 49.53, 0)),  # 11
    Part.LineSegment(V(26.76, 49.53, 0), V(26.76, 1.27, 0)),  # 12
    Part.LineSegment(V(26.76, 1.27, 0), V(29.17, 1.27, 0)),  # 13
    Part.LineSegment(V(29.17, 1.27, 0), V(29.17, -3.23, 0)),  # 14
    Part.LineSegment(V(29.17, -3.23, 0), V(26.76, -3.23, 0)),  # 15
], False)
sketch10.addConstraint([
    Sketcher.Constraint("Coincident", 0, 2, 1, 1),
    Sketcher.Constraint("Coincident", 1, 2, 2, 1),
    Sketcher.Constraint("Coincident", 2, 2, 3, 1),
    Sketcher.Constraint("Coincident", 3, 2, 4, 1),
    Sketcher.Constraint("Coincident", 4, 2, 5, 1),
    Sketcher.Constraint("Coincident", 5, 2, 6, 1),
    Sketcher.Constraint("Coincident", 6, 2, 7, 1),
    Sketcher.Constraint("Coincident", 7, 2, 8, 1),
    Sketcher.Constraint("Coincident", 8, 2, 9, 1),
    Sketcher.Constraint("Coincident", 9, 2, 10, 1),
    Sketcher.Constraint("Coincident", 10, 2, 11, 1),
    Sketcher.Constraint("Coincident", 11, 2, 12, 1),
    Sketcher.Constraint("Coincident", 12, 2, 13, 1),
    Sketcher.Constraint("Coincident", 13, 2, 14, 1),
    Sketcher.Constraint("Coincident", 14, 2, 15, 1),
    Sketcher.Constraint("Coincident", 15, 2, 0, 1),
    Sketcher.Constraint("Vertical", 0),
    Sketcher.Constraint("Horizontal", 1),
    Sketcher.Constraint("Vertical", 2),
    Sketcher.Constraint("Horizontal", 3),
    Sketcher.Constraint("Vertical", 4),
    Sketcher.Constraint("Horizontal", 5),
    Sketcher.Constraint("Vertical", 6),
    Sketcher.Constraint("Horizontal", 7),
    Sketcher.Constraint("Vertical", 8),
    Sketcher.Constraint("Horizontal", 9),
    Sketcher.Constraint("Vertical", 10),
    Sketcher.Constraint("Horizontal", 11),
    Sketcher.Constraint("Vertical", 12),
    Sketcher.Constraint("Horizontal", 13),
    Sketcher.Constraint("Vertical", 14),
    Sketcher.Constraint("Horizontal", 15),
    Sketcher.Constraint("Horizontal", 7, 2, 10, 2),
    Sketcher.Constraint("Horizontal", 5, 2, 12, 2),
    Sketcher.Constraint("Horizontal", 3, 2, 14, 2),
    Sketcher.Constraint("Vertical", 2, 2, 5, 2),
    Sketcher.Constraint("Vertical", 4, 2, 7, 2),
    Sketcher.Constraint("Vertical", 0, 2, 11, 2),
    Sketcher.Constraint("DistanceY", -1, 1, 4, 2, Q("0.05 in")),
    Sketcher.Constraint("DistanceY", 6, 1, 6, 2, Q("1.9 in")),
    Sketcher.Constraint("DistanceX", 1, 2, 1, 1, Q("0.1992 in")),
    Sketcher.Constraint("DistanceY", 8, 1, 8, 2, Q("0.1594 in")),
    Sketcher.Constraint("DistanceX", 3, 2, 3, 1, Q("1.3225 mm")),
    Sketcher.Constraint("DistanceX", 9, 1, 9, 2, Q("8.3728 mm")),
    Sketcher.Constraint("DistanceX", 13, 1, 13, 2, Q("2.4148 mm")),
    Sketcher.Constraint("DistanceY", 0, 2, 0, 1, Q("0.242 mm")),
    Sketcher.Constraint("DistanceY", 4, 1, 4, 2, Q("4.499 mm")),
    Sketcher.Constraint("DistanceX", -1, 1, 3, 2, Q("0.8022 in")),
])
sketch10.setExpression("Constraints[39]", "Params.sketch10_height")
pocket5 = doc.addObject("PartDesign::Pocket", "Pocket004")
body.addObject(pocket5)
pocket5.Profile = sketch10
pocket5.setExpression("Length", "Params.pocket5_length")
pocket5.Reversed = True

# Sketch on YZ plane
sketch11 = doc.addObject("Sketcher::SketchObject", "Sketch010")
body.addObject(sketch11)
sketch11.AttachmentSupport = (doc.YZ_Plane, [""])
sketch11.MapMode = "FlatFace"
sketch11.AttachmentOffset = App.Placement(V(0, 0, -42.4234), App.Rotation())
sketch11.addGeometry([
    Part.LineSegment(V(0.11, 0.13, 0), V(5.32, -5.08, 0)),  # 0
    Part.LineSegment(V(5.32, -5.08, 0), V(5.19, -5.08, 0)),  # 1
    Part.LineSegment(V(5.19, -5.08, 0), V(0.11, 0, 0)),  # 2
    Part.LineSegment(V(0.11, 0, 0), V(0, 0, 0)),  # 3
    Part.LineSegment(V(0, 0, 0), V(0, 0.13, 0)),  # 4
    Part.LineSegment(V(0, 0.13, 0), V(0.11, 0.13, 0)),  # 5
], False)
sketch11.addConstraint([
    Sketcher.Constraint("Coincident", 0, 2, 1, 1),
    Sketcher.Constraint("Coincident", 1, 2, 2, 1),
    Sketcher.Constraint("Coincident", 2, 2, 3, 1),
    Sketcher.Constraint("Coincident", 3, 2, 4, 1),
    Sketcher.Constraint("Coincident", 4, 2, 5, 1),
    Sketcher.Constraint("Coincident", 5, 2, 0, 1),
    Sketcher.Constraint("Horizontal", 1),
    Sketcher.Constraint("Horizontal", 3),
    Sketcher.Constraint("Vertical", 4),
    Sketcher.Constraint("Horizontal", 5),
    Sketcher.Constraint("Coincident", 3, 2, -1, 1),
    Sketcher.Constraint("Parallel", 0, 2),
    Sketcher.Constraint("Angle", 2, Q("135 deg")),
    Sketcher.Constraint("DistanceY", 4, 1, 4, 2, Q("0.005 in")),
    Sketcher.Constraint("DistanceX", 2, 2, 0, 2, Q("0.205 in")),
    Sketcher.Constraint("DistanceX", 1, 2, 1, 1, Q("0.1283 mm")),
    Sketcher.Constraint("DistanceX", 3, 2, 3, 1, Q("0.108 mm")),
])
sketch11.setExpression("Constraints[13]", "Params.sketch11_height")
pocket6 = doc.addObject("PartDesign::Pocket", "Pocket005")
body.addObject(pocket6)
pocket6.Profile = sketch11
pocket6.setExpression("Length", "Params.pocket6_length")
pocket6.Reversed = True

# Sketch on YZ plane
sketch12 = doc.addObject("Sketcher::SketchObject", "Sketch011")
body.addObject(sketch12)
sketch12.AttachmentSupport = (doc.YZ_Plane, [""])
sketch12.MapMode = "FlatFace"
sketch12.AttachmentOffset = App.Placement(V(0, 0, -42.4234), App.Rotation())
sketch12.addGeometry([
    Part.LineSegment(V(15.35, -5.08, 0), V(15.22, -5.08, 0)),
    Part.LineSegment(V(15.22, -5.08, 0), V(20.38, 1.27, 0)),
    Part.LineSegment(V(20.38, 1.27, 0), V(20.38, -0.05, 0)),
    Part.LineSegment(V(20.38, -0.05, 0), V(15.35, -5.08, 0)),
], False)
sketch12.addConstraint([
    Sketcher.Constraint("Coincident", 0, 2, 1, 1),
    Sketcher.Constraint("Coincident", 1, 2, 2, 1),
    Sketcher.Constraint("Coincident", 2, 2, 3, 1),
    Sketcher.Constraint("Coincident", 3, 2, 0, 1),
    Sketcher.Constraint("Horizontal", 0),
    Sketcher.Constraint("Vertical", 2),
    Sketcher.Constraint("Angle", 3, Q("-135 deg")),
    Sketcher.Constraint("DistanceY", -1, 1, 1, 2, Q("0.05 in")),
    Sketcher.Constraint("DistanceX", 0, 2, 0, 1, Q("0.1283 mm")),
    Sketcher.Constraint("DistanceY", 2, 2, 2, 1, Q("1.3225 mm")),
    Sketcher.Constraint("DistanceX", -1, 1, 1, 2, Q("0.8022 in")),
    Sketcher.Constraint("DistanceX", -1, 1, 3, 2, Q("0.6043 in")),
])
pocket7 = doc.addObject("PartDesign::Pocket", "Pocket006")
body.addObject(pocket7)
pocket7.Profile = sketch12
pocket7.setExpression("Length", "Params.pocket7_length")
pocket7.Reversed = True

# Sketch on YZ plane
sketch13 = doc.addObject("Sketcher::SketchObject", "Sketch012")
body.addObject(sketch13)
sketch13.AttachmentSupport = (doc.YZ_Plane, [""])
sketch13.MapMode = "FlatFace"
sketch13.AttachmentOffset = App.Placement(V(0, 0, -42.4234), App.Rotation())
sketch13.addGeometry([
    Part.LineSegment(V(20.38, 50.85, 0), V(20.38, 49.53, 0)),
    Part.LineSegment(V(20.38, 49.53, 0), V(15.22, 55.89, 0)),
    Part.LineSegment(V(15.22, 55.89, 0), V(15.35, 55.89, 0)),
    Part.LineSegment(V(15.35, 55.89, 0), V(20.38, 50.85, 0)),
], False)
sketch13.addConstraint([
    Sketcher.Constraint("Coincident", 0, 2, 1, 1),
    Sketcher.Constraint("Coincident", 1, 2, 2, 1),
    Sketcher.Constraint("Coincident", 2, 2, 3, 1),
    Sketcher.Constraint("Coincident", 3, 2, 0, 1),
    Sketcher.Constraint("Vertical", 0),
    Sketcher.Constraint("Horizontal", 2),
    Sketcher.Constraint("DistanceX", 2, 1, 2, 2, Q("0.005 in")),
    Sketcher.Constraint("DistanceY", -1, 1, 0, 2, Q("1.95 in")),
    Sketcher.Constraint("Angle", 1, Q("129.0307 deg")),
    Sketcher.Constraint("DistanceY", 0, 2, 0, 1, Q("1.3225 mm")),
    Sketcher.Constraint("DistanceX", -1, 1, 0, 2, Q("0.8022 in")),
    Sketcher.Constraint("Distance", 1, Q("8.1852 mm")),
])
sketch13.setExpression("Constraints[6]", "Params.sketch13_width")
pocket8 = doc.addObject("PartDesign::Pocket", "Pocket007")
body.addObject(pocket8)
pocket8.Profile = sketch13
pocket8.setExpression("Length", "Params.pocket8_length")
pocket8.Reversed = True

# Sketch on YZ plane
sketch14 = doc.addObject("Sketcher::SketchObject", "Sketch013")
body.addObject(sketch14)
sketch14.AttachmentSupport = (doc.YZ_Plane, [""])
sketch14.MapMode = "FlatFace"
sketch14.AttachmentOffset = App.Placement(V(0, 0, -42.4234), App.Rotation())
sketch14.addGeometry([
    Part.LineSegment(V(5.19, 55.88, 0), V(5.32, 55.88, 0)),
    Part.LineSegment(V(5.32, 55.88, 0), V(0, 50.53, 0)),
    Part.LineSegment(V(0, 50.53, 0), V(0, 50.96, 0)),
    Part.LineSegment(V(0, 50.96, 0), V(5.19, 55.88, 0)),
], False)
sketch14.addConstraint([
    Sketcher.Constraint("Coincident", 0, 2, 1, 1),
    Sketcher.Constraint("Coincident", 1, 2, 2, 1),
    Sketcher.Constraint("Coincident", 2, 2, 3, 1),
    Sketcher.Constraint("Coincident", 3, 2, 0, 1),
    Sketcher.Constraint("Horizontal", 0),
    Sketcher.Constraint("Vertical", 2),
    Sketcher.Constraint("PointOnObject", 1, 2, -2),
    Sketcher.Constraint("DistanceX", 0, 1, 0, 2, Q("0.005 in")),
    Sketcher.Constraint("DistanceY", 2, 1, 2, 2, Q("0.4252 mm")),
    Sketcher.Constraint("DistanceY", -1, 1, 1, 2, Q("1.9895 in")),
    Sketcher.Constraint("DistanceY", 2, 2, 0, 2, Q("0.1938 in")),
    Sketcher.Constraint("Distance", 1, Q("7.5396 mm")),
])
sketch14.setExpression("Constraints[7]", "Params.sketch14_width")
pocket9 = doc.addObject("PartDesign::Pocket", "Pocket008")
body.addObject(pocket9)
pocket9.Profile = sketch14
pocket9.setExpression("Length", "Params.pocket9_length")
pocket9.Reversed = True

doc.recompute()
